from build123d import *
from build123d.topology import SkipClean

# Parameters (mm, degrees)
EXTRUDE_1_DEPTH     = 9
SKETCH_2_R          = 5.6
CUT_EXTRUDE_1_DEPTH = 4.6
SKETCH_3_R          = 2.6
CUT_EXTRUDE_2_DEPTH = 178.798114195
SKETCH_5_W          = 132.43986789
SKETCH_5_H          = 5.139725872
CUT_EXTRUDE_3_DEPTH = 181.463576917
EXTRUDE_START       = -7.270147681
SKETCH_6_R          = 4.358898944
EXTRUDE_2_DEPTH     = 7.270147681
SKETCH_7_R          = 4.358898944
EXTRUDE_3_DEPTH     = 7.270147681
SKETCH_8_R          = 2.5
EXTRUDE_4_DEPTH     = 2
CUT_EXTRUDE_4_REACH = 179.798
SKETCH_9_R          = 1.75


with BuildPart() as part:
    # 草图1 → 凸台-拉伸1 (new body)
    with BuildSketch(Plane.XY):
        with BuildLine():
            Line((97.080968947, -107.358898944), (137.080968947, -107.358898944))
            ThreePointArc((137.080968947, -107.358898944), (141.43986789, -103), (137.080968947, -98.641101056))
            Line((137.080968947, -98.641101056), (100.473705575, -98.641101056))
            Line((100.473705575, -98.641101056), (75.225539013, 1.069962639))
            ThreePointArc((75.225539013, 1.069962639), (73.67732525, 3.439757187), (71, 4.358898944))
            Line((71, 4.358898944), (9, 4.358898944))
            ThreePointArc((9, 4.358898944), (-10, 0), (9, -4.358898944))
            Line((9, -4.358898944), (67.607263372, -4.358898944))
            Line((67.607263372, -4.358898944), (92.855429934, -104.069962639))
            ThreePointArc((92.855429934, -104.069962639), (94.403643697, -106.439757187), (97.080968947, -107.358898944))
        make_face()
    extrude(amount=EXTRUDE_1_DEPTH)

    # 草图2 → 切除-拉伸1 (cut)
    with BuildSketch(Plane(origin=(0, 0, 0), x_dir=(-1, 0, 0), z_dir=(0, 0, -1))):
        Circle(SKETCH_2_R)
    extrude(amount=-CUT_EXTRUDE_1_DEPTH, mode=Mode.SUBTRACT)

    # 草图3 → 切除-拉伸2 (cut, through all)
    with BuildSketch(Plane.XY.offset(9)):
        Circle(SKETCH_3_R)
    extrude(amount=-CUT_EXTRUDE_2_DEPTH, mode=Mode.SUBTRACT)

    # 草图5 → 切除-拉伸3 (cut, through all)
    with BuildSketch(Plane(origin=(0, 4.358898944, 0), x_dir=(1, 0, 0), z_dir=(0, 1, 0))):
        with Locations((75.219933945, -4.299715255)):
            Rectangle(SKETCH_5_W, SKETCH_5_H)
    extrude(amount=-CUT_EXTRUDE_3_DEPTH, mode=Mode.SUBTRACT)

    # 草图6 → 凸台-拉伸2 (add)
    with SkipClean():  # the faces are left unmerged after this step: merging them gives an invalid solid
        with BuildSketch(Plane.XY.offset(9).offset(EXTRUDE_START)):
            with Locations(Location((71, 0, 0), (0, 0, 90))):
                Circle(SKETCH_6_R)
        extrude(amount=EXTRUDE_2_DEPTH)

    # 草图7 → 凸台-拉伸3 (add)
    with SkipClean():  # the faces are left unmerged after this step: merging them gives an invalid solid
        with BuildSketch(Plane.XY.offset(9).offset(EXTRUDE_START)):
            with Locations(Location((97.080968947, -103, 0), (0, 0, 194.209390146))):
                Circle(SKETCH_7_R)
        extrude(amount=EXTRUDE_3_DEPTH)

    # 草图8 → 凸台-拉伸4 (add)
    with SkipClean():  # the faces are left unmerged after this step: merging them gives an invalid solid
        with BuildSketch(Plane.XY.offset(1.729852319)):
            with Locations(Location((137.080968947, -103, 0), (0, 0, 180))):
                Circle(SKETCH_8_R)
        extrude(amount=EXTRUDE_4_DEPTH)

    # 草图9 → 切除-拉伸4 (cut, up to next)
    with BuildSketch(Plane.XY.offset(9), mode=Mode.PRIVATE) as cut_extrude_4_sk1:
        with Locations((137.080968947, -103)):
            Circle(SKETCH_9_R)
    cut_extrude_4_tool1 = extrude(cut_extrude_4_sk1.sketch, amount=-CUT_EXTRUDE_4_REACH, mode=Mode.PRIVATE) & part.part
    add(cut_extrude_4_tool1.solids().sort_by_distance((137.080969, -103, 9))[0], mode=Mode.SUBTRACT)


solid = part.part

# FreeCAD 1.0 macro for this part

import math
import FreeCAD as App
import Part
import Sketcher
from FreeCAD import Vector


def add_polygon(sketch, points):
    """Adds a closed chain of lines whose ends are joined by coincident constraints."""
    first, n = sketch.GeometryCount, len(points)
    for a, b in zip(points, points[1:] + points[:1]):
        sketch.addGeometry(Part.LineSegment(App.Vector(*a, 0), App.Vector(*b, 0)), False)
    for i in range(n):
        sketch.addConstraint(Sketcher.Constraint("Coincident", first + i, 2, first + (i + 1) % n, 1))

doc = App.newDocument("Part")
body = doc.addObject("PartDesign::Body", "Body")

sketch1 = body.newObject("Sketcher::SketchObject", "Sketch")
sketch1.AttachmentSupport = (doc.getObject("XY_Plane"), [""])
sketch1.MapMode = "FlatFace"
sketch1.addGeometry(Part.LineSegment(Vector(97.1, -107.4, 0), Vector(137.1, -107.4, 0)), False)
sketch1.addGeometry(Part.ArcOfCircle(Part.Circle(Vector(137.1, -103, 0), Vector(0, 0, 1), 4.4), math.radians(-90), math.radians(90)), False)
sketch1.addGeometry(Part.LineSegment(Vector(137.1, -98.6, 0), Vector(100.5, -98.6, 0)), False)
sketch1.addGeometry(Part.LineSegment(Vector(100.5, -98.6, 0), Vector(75.2, 1.1, 0)), False)
sketch1.addGeometry(Part.ArcOfCircle(Part.Circle(Vector(71, 0, 0), Vector(0, 0, 1), 4.4), math.radians(14), math.radians(90)), False)
sketch1.addGeometry(Part.LineSegment(Vector(71, 4.4, 0), Vector(9, 4.4, 0)), False)
sketch1.addGeometry(Part.ArcOfCircle(Part.Circle(Vector(0, 0, 0), Vector(0, 0, 1), 10), math.radians(26), math.radians(334)), False)
sketch1.addGeometry(Part.LineSegment(Vector(9, -4.4, 0), Vector(67.6, -4.4, 0)), False)
sketch1.addGeometry(Part.LineSegment(Vector(67.6, -4.4, 0), Vector(92.9, -104.1, 0)), False)
sketch1.addGeometry(Part.ArcOfCircle(Part.Circle(Vector(97.1, -103, 0), Vector(0, 0, 1), 4.4), math.radians(-166), math.radians(-90)), False)
sketch1.addConstraint(Sketcher.Constraint("Tangent", 0, 2, 1, 1))
sketch1.addConstraint(Sketcher.Constraint("Tangent", 1, 2, 2, 1))
sketch1.addConstraint(Sketcher.Constraint("Coincident", 2, 2, 3, 1))
sketch1.addConstraint(Sketcher.Constraint("Tangent", 3, 2, 4, 1))
sketch1.addConstraint(Sketcher.Constraint("Tangent", 4, 2, 5, 1))
sketch1.addConstraint(Sketcher.Constraint("Coincident", 5, 2, 6, 1))
sketch1.addConstraint(Sketcher.Constraint("Coincident", 6, 2, 7, 1))
sketch1.addConstraint(Sketcher.Constraint("Coincident", 7, 2, 8, 1))
sketch1.addConstraint(Sketcher.Constraint("Tangent", 8, 2, 9, 1))
sketch1.addConstraint(Sketcher.Constraint("Tangent", 9, 2, 0, 1))
sketch1.addConstraint(Sketcher.Constraint("Horizontal", 0))
sketch1.addConstraint(Sketcher.Constraint("Horizontal", 2))
sketch1.addConstraint(Sketcher.Constraint("Horizontal", 5))
sketch1.addConstraint(Sketcher.Constraint("Horizontal", 7))
sketch1.addConstraint(Sketcher.Constraint("Coincident", 6, 3, -1, 1))
sketch1.addConstraint(Sketcher.Constraint("Equal", 1, 4))
sketch1.addConstraint(Sketcher.Constraint("Equal", 4, 9))
sketch1.addConstraint(Sketcher.Constraint("PointOnObject", 4, 3, -1))
sketch1.addConstraint(Sketcher.Constraint("Parallel", 3, 8))
sketch1.addConstraint(Sketcher.Constraint("Vertical", 5, 2, 6, 2))
sketch1.addConstraint(Sketcher.Constraint("Radius", 6, 10.0))
sketch1.addConstraint(Sketcher.Constraint("DistanceX", 0, 1, 0, 2, 40.0))
sketch1.addConstraint(Sketcher.Constraint("DistanceX", 5, 2, 5, 1, 62.0))
sketch1.addConstraint(Sketcher.Constraint("DistanceY", 1, 3, -1, 1, 103.0))
sketch1.addConstraint(Sketcher.Constraint("DistanceX", -1, 1, 4, 3, 71.0))
sketch1.addConstraint(Sketcher.Constraint("Distance", 3, 102.85799))
sketch1.addConstraint(Sketcher.Constraint("DistanceX", 2, 2, 2, 1, 36.607263))
pad1 = body.newObject("PartDesign::Pad", "Pad")
pad1.Profile = sketch1
pad1.Length = 9

sketch2 = body.newObject("Sketcher::SketchObject", "Sketch001")
sketch2.AttachmentSupport = (doc.getObject("XY_Plane"), [""])
sketch2.MapMode = "FlatFace"
sketch2.addGeometry(Part.Circle(Vector(0, 0, 0), Vector(0, 0, 1), 6), False)
sketch2.addConstraint(Sketcher.Constraint("Coincident", 0, 3, -1, 1))
sketch2.addConstraint(Sketcher.Constraint("Diameter", 0, 11.2))
pocket1 = body.newObject("PartDesign::Pocket", "Pocket")
pocket1.Profile = sketch2
pocket1.Length = 4.6
pocket1.Reversed = True

sketch3 = body.newObject("Sketcher::SketchObject", "Sketch002")
sketch3.AttachmentSupport = (doc.getObject("XY_Plane"), [""])
sketch3.MapMode = "FlatFace"
sketch3.AttachmentOffset = App.Placement(Vector(0, 0, 9), App.Rotation())
sketch3.addGeometry(Part.Circle(Vector(0, 0, 0), Vector(0, 0, 1), 2.6), False)
sketch3.addConstraint(Sketcher.Constraint("Coincident", 0, 3, -1, 1))
sketch3.addConstraint(Sketcher.Constraint("Diameter", 0, 5.2))
pocket2 = body.newObject("PartDesign::Pocket", "Pocket001")
pocket2.Profile = sketch3
pocket2.Type = "ThroughAll"

sketch4 = body.newObject("Sketcher::SketchObject", "Sketch003")
sketch4.AttachmentSupport = (doc.getObject("XZ_Plane"), [""])
sketch4.MapMode = "FlatFace"
sketch4.AttachmentOffset = App.Placement(Vector(0, 0, -4.358899), App.Rotation())
add_polygon(sketch4, [(9, 2), (9, 7), (141, 7), (141, 2)])
sketch4.addConstraint(Sketcher.Constraint("Vertical", 0))
sketch4.addConstraint(Sketcher.Constraint("Horizontal", 1))
sketch4.addConstraint(Sketcher.Constraint("Vertical", 2))
sketch4.addConstraint(Sketcher.Constraint("Horizontal", 3))
sketch4.addConstraint(Sketcher.Constraint("DistanceX", -1, 1, 0, 2, 9.0))
sketch4.addConstraint(Sketcher.Constraint("DistanceX", 1, 1, 1, 2, 132.439868))
sketch4.addConstraint(Sketcher.Constraint("DistanceY", 0, 1, 0, 2, 5.139726))
sketch4.addConstraint(Sketcher.Constraint("DistanceY", -1, 1, 0, 2, 6.869578))
pocket3 = body.newObject("PartDesign::Pocket", "Pocket002")
pocket3.Profile = sketch4
pocket3.Type = "ThroughAll"
pocket3.Reversed = True

sketch5 = body.newObject("Sketcher::SketchObject", "Sketch004")
sketch5.AttachmentSupport = (doc.getObject("XY_Plane"), [""])
sketch5.MapMode = "FlatFace"
sketch5.AttachmentOffset = App.Placement(Vector(0, 0, 1.729852), App.Rotation())
sketch5.addGeometry(Part.Circle(Vector(71, 0, 0), Vector(0, 0, 1), 4.4), False)
sketch5.addConstraint(Sketcher.Constraint("PointOnObject", 0, 3, -1))
sketch5.addConstraint(Sketcher.Constraint("DistanceX", -1, 1, 0, 3, 71.0))
sketch5.addConstraint(Sketcher.Constraint("Diameter", 0, 8.717798))
pad2 = body.newObject("PartDesign::Pad", "Pad001")
pad2.Profile = sketch5
pad2.Length = 7.270148

sketch6 = body.newObject("Sketcher::SketchObject", "Sketch005")
sketch6.AttachmentSupport = (doc.getObject("XY_Plane"), [""])
sketch6.MapMode = "FlatFace"
sketch6.AttachmentOffset = App.Placement(Vector(0, 0, 1.729852), App.Rotation())
sketch6.addGeometry(Part.Circle(Vector(97.1, -103, 0), Vector(0, 0, 1), 4.4), False)
sketch6.addConstraint(Sketcher.Constraint("DistanceY", 0, 3, -1, 1, 103.0))
sketch6.addConstraint(Sketcher.Constraint("Diameter", 0, 8.717798))
sketch6.addConstraint(Sketcher.Constraint("DistanceX", -1, 1, 0, 3, 97.080969))
pad3 = body.newObject("PartDesign::Pad", "Pad002")
pad3.Profile = sketch6
pad3.Length = 7.270148

sketch7 = body.newObject("Sketcher::SketchObject", "Sketch006")
sketch7.AttachmentSupport = (doc.getObject("XY_Plane"), [""])
sketch7.MapMode = "FlatFace"
sketch7.AttachmentOffset = App.Placement(Vector(0, 0, 1.729852), App.Rotation())
sketch7.addGeometry(Part.Circle(Vector(137.1, -103, 0), Vector(0, 0, 1), 2.5), False)
sketch7.addConstraint(Sketcher.Constraint("Diameter", 0, 5.0))
sketch7.addConstraint(Sketcher.Constraint("DistanceY", 0, 3, -1, 1, 103.0))
sketch7.addConstraint(Sketcher.Constraint("DistanceX", -1, 1, 0, 3, 137.080969))
pad4 = body.newObject("PartDesign::Pad", "Pad003")
pad4.Profile = sketch7
pad4.Length = 2

sketch8 = body.newObject("Sketcher::SketchObject", "Sketch007")
sketch8.AttachmentSupport = (doc.getObject("XY_Plane"), [""])
sketch8.MapMode = "FlatFace"
sketch8.AttachmentOffset = App.Placement(Vector(0, 0, 9), App.Rotation())
sketch8.addGeometry(Part.Circle(Vector(137.1, -103, 0), Vector(0, 0, 1), 1.8), False)
sketch8.addConstraint(Sketcher.Constraint("Diameter", 0, 3.5))
sketch8.addConstraint(Sketcher.Constraint("DistanceY", 0, 3, -1, 1, 103.0))
sketch8.addConstraint(Sketcher.Constraint("DistanceX", -1, 1, 0, 3, 137.080969))
pocket4 = body.newObject("PartDesign::Pocket", "Pocket003")
pocket4.Profile = sketch8
pocket4.Type = "UpToFirst"

doc.recompute()
